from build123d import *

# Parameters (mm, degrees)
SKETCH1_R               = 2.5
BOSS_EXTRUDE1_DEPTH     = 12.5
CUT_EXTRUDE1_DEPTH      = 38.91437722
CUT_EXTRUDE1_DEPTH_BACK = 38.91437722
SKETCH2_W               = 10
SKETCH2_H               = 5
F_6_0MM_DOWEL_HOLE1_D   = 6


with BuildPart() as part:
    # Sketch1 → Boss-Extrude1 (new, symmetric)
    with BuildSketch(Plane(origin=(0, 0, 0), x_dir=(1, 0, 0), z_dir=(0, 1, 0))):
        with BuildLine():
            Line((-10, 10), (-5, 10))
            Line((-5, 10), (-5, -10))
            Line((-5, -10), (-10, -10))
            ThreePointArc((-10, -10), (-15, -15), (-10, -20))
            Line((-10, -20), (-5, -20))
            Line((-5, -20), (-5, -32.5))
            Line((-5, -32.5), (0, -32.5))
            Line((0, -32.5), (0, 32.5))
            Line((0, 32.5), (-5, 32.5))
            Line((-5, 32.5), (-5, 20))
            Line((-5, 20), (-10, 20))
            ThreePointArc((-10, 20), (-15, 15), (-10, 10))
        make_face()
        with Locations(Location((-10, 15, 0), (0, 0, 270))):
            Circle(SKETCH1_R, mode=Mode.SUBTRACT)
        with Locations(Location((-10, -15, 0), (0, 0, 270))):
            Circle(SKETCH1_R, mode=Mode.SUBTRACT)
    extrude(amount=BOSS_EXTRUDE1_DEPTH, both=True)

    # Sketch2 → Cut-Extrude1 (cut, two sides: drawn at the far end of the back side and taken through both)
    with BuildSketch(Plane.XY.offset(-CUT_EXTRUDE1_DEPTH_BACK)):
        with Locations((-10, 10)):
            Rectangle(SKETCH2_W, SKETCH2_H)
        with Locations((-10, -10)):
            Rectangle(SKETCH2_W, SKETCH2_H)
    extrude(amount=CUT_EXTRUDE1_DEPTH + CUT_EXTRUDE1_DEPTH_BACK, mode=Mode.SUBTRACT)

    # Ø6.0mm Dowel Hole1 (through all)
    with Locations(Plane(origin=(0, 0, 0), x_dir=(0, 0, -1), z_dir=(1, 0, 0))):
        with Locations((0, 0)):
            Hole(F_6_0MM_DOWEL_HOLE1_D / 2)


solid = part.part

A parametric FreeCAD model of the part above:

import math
import FreeCAD as App
import Part
import Sketcher

V = App.Vector
Q = App.Units.Quantity


def add_polygon(sketch, points):
    """Adds a closed chain of lines whose ends are joined by coincident constraints."""
    first, n = sketch.GeometryCount, len(points)
    for a, b in zip(points, points[1:] + points[:1]):
        sketch.addGeometry(Part.LineSegment(App.Vector(*a, 0), App.Vector(*b, 0)), False)
    for i in range(n):
        sketch.addConstraint(Sketcher.Constraint("Coincident", first + i, 2, first + (i + 1) % n, 1))

doc = App.newDocument("Part")
params = doc.addObject("Spreadsheet::Sheet", "Params")
for row, (alias, value) in enumerate([
    ("sketch1_diameter", "5 mm"),
    ("sketch1_radius", "5 mm"),
    ("sketch1_width", "5 mm"),
    ("sketch1_height", "20 mm"),
    ("sketch1_height2", "65 mm"),
    ("pad1_length", "25 mm"),
    ("sketch2_width", "10 mm"),
    ("sketch2_height", "5 mm"),
    ("sketch3_diameter", "6 mm"),
    ("hole_diameter", "6 mm"),
], start=1):
    params.set(f"A{row}", alias)
    params.set(f"B{row}", "=" + value)
    params.setAlias(f"B{row}", alias)

body = doc.addObject("PartDesign::Body", "Body")

# Sketch on XZ plane
sketch1 = doc.addObject("Sketcher::SketchObject", "Sketch")
body.addObject(sketch1)
sketch1.AttachmentSupport = (doc.XZ_Plane, [""])
sketch1.MapMode = "FlatFace"
sketch1.addGeometry([
    Part.LineSegment(V(-10, -10, 0), V(-5, -10, 0)),  # 0
    Part.LineSegment(V(-5, -10, 0), V(-5, 10, 0)),  # 1
    Part.LineSegment(V(-5, 10, 0), V(-10, 10, 0)),  # 2
    Part.ArcOfCircle(Part.Circle(V(-10, 15, 0), V(0, 0, 1), 5), math.radians(90), math.radians(270)),  # 3
    Part.LineSegment(V(-10, 20, 0), V(-5, 20, 0)),  # 4
    Part.LineSegment(V(-5, 20, 0), V(-5, 32.5, 0)),  # 5
    Part.LineSegment(V(-5, 32.5, 0), V(0, 32.5, 0)),  # 6
    Part.LineSegment(V(0, 32.5, 0), V(0, -32.5, 0)),  # 7
    Part.LineSegment(V(0, -32.5, 0), V(-5, -32.5, 0)),  # 8
    Part.LineSegment(V(-5, -32.5, 0), V(-5, -20, 0)),  # 9
    Part.LineSegment(V(-5, -20, 0), V(-10, -20, 0)),  # 10
    Part.ArcOfCircle(Part.Circle(V(-10, -15, 0), V(0, 0, 1), 5), math.radians(90), math.radians(270)),  # 11
    Part.Circle(V(-10, 15, 0), V(0, 0, 1), 2.5),  # 12
    Part.Circle(V(-10, -15, 0), V(0, 0, 1), 2.5),  # 13
], False)
sketch1.addConstraint([
    Sketcher.Constraint("Coincident", 0, 2, 1, 1),
    Sketcher.Constraint("Coincident", 1, 2, 2, 1),
    Sketcher.Constraint("Tangent", 2, 2, 3, 2),
    Sketcher.Constraint("Tangent", 3, 1, 4, 1),
    Sketcher.Constraint("Coincident", 4, 2, 5, 1),
    Sketcher.Constraint("Coincident", 5, 2, 6, 1),
    Sketcher.Constraint("Coincident", 6, 2, 7, 1),
    Sketcher.Constraint("Coincident", 7, 2, 8, 1),
    Sketcher.Constraint("Coincident", 8, 2, 9, 1),
    Sketcher.Constraint("Coincident", 9, 2, 10, 1),
    Sketcher.Constraint("Tangent", 10, 2, 11, 2),
    Sketcher.Constraint("Tangent", 11, 1, 0, 1),
    Sketcher.Constraint("Horizontal", 0),
    Sketcher.Constraint("Vertical", 1),
    Sketcher.Constraint("Horizontal", 2),
    Sketcher.Constraint("Horizontal", 4),
    Sketcher.Constraint("Vertical", 5),
    Sketcher.Constraint("Horizontal", 6),
    Sketcher.Constraint("Vertical", 7),
    Sketcher.Constraint("Horizontal", 8),
    Sketcher.Constraint("Vertical", 9),
    Sketcher.Constraint("Horizontal", 10),
    Sketcher.Constraint("Coincident", 12, 3, 3, 3),
    Sketcher.Constraint("Coincident", 13, 3, 11, 3),
    Sketcher.Constraint("Equal", 3, 11),
    Sketcher.Constraint("Equal", 12, 13),
    Sketcher.Constraint("Symmetric", 6, 2, 7, 2, -1, 1),
    Sketcher.Constraint("Symmetric", 3, 3, 11, 3, -1),
    Sketcher.Constraint("Vertical", 1, 2, 4, 2),
    Sketcher.Constraint("Vertical", 5, 2, 8, 2),
    Sketcher.Constraint("Equal", 4, 6),
    Sketcher.Constraint("Diameter", 12, Q("5 mm")),
    Sketcher.Constraint("Radius", 3, Q("5 mm")),
    Sketcher.Constraint("DistanceX", 0, 1, 0, 2, Q("5 mm")),
    Sketcher.Constraint("DistanceY", 1, 1, 1, 2, Q("20 mm")),
    Sketcher.Constraint("DistanceY", 7, 2, 7, 1, Q("65 mm")),
])
sketch1.setExpression("Constraints[31]", "Params.sketch1_diameter")
sketch1.setExpression("Constraints[32]", "Params.sketch1_radius")
sketch1.setExpression("Constraints[33]", "Params.sketch1_width")
sketch1.setExpression("Constraints[34]", "Params.sketch1_height")
sketch1.setExpression("Constraints[35]", "Params.sketch1_height2")
pad1 = doc.addObject("PartDesign::Pad", "Pad")
body.addObject(pad1)
pad1.Profile = sketch1
pad1.setExpression("Length", "Params.pad1_length")
pad1.Midplane = True

# Sketch on XY plane
sketch2 = doc.addObject("Sketcher::SketchObject", "Sketch001")
body.addObject(sketch2)
sketch2.AttachmentSupport = (doc.XY_Plane, [""])
sketch2.MapMode = "FlatFace"
add_polygon(sketch2, [(-15, 12), (-15, 8), (-5, 8), (-5, 12)])  # lines 0-3
add_polygon(sketch2, [(-15, -8), (-15, -12), (-5, -12), (-5, -8)])  # lines 4-7
sketch2.addConstraint([
    Sketcher.Constraint("Vertical", 0),
    Sketcher.Constraint("Horizontal", 1),
    Sketcher.Constraint("Vertical", 2),
    Sketcher.Constraint("Horizontal", 3),
    Sketcher.Constraint("Vertical", 4),
    Sketcher.Constraint("Horizontal", 5),
    Sketcher.Constraint("Vertical", 6),
    Sketcher.Constraint("Horizontal", 7),
    Sketcher.Constraint("Symmetric", 3, 2, 4, 2, -1),
    Sketcher.Constraint("Symmetric", 1, 2, 6, 2, -1),
    Sketcher.Constraint("DistanceX", 1, 1, 1, 2, Q("10 mm")),
    Sketcher.Constraint("DistanceY", 0, 2, 0, 1, Q("5 mm")),
    Sketcher.Constraint("DistanceX", 0, 2, -1, 1, Q("15 mm")),
    Sketcher.Constraint("DistanceY", 4, 2, 0, 2, Q("20 mm")),
])
sketch2.setExpression("Constraints[18]", "Params.sketch2_width")
sketch2.setExpression("Constraints[19]", "Params.sketch2_height")
pocket1 = doc.addObject("PartDesign::Pocket", "Pocket")
body.addObject(pocket1)
pocket1.Profile = sketch2
pocket1.Type = "ThroughAll"
pocket1.Midplane = True

# Sketch on YZ plane
sketch3 = doc.addObject("Sketcher::SketchObject", "Sketch002")
body.addObject(sketch3)
sketch3.AttachmentSupport = (doc.YZ_Plane, [""])
sketch3.MapMode = "FlatFace"
sketch3.addGeometry(Part.Circle(V(0, 0, 0), V(0, 0, 1), 3), False)
sketch3.addConstraint([
    Sketcher.Constraint("Coincident", 0, 3, -1, 1),
    Sketcher.Constraint("Diameter", 0, Q("6 mm")),
])
sketch3.setExpression("Constraints[1]", "Params.sketch3_diameter")
doc.recompute()
hole = doc.addObject("PartDesign::Hole", "Hole")
body.addObject(hole)
hole.Profile = sketch3
hole.ThreadType = "None"
hole.setExpression("Diameter", "Params.hole_diameter")
hole.DepthType = "ThroughAll"

doc.recompute()
